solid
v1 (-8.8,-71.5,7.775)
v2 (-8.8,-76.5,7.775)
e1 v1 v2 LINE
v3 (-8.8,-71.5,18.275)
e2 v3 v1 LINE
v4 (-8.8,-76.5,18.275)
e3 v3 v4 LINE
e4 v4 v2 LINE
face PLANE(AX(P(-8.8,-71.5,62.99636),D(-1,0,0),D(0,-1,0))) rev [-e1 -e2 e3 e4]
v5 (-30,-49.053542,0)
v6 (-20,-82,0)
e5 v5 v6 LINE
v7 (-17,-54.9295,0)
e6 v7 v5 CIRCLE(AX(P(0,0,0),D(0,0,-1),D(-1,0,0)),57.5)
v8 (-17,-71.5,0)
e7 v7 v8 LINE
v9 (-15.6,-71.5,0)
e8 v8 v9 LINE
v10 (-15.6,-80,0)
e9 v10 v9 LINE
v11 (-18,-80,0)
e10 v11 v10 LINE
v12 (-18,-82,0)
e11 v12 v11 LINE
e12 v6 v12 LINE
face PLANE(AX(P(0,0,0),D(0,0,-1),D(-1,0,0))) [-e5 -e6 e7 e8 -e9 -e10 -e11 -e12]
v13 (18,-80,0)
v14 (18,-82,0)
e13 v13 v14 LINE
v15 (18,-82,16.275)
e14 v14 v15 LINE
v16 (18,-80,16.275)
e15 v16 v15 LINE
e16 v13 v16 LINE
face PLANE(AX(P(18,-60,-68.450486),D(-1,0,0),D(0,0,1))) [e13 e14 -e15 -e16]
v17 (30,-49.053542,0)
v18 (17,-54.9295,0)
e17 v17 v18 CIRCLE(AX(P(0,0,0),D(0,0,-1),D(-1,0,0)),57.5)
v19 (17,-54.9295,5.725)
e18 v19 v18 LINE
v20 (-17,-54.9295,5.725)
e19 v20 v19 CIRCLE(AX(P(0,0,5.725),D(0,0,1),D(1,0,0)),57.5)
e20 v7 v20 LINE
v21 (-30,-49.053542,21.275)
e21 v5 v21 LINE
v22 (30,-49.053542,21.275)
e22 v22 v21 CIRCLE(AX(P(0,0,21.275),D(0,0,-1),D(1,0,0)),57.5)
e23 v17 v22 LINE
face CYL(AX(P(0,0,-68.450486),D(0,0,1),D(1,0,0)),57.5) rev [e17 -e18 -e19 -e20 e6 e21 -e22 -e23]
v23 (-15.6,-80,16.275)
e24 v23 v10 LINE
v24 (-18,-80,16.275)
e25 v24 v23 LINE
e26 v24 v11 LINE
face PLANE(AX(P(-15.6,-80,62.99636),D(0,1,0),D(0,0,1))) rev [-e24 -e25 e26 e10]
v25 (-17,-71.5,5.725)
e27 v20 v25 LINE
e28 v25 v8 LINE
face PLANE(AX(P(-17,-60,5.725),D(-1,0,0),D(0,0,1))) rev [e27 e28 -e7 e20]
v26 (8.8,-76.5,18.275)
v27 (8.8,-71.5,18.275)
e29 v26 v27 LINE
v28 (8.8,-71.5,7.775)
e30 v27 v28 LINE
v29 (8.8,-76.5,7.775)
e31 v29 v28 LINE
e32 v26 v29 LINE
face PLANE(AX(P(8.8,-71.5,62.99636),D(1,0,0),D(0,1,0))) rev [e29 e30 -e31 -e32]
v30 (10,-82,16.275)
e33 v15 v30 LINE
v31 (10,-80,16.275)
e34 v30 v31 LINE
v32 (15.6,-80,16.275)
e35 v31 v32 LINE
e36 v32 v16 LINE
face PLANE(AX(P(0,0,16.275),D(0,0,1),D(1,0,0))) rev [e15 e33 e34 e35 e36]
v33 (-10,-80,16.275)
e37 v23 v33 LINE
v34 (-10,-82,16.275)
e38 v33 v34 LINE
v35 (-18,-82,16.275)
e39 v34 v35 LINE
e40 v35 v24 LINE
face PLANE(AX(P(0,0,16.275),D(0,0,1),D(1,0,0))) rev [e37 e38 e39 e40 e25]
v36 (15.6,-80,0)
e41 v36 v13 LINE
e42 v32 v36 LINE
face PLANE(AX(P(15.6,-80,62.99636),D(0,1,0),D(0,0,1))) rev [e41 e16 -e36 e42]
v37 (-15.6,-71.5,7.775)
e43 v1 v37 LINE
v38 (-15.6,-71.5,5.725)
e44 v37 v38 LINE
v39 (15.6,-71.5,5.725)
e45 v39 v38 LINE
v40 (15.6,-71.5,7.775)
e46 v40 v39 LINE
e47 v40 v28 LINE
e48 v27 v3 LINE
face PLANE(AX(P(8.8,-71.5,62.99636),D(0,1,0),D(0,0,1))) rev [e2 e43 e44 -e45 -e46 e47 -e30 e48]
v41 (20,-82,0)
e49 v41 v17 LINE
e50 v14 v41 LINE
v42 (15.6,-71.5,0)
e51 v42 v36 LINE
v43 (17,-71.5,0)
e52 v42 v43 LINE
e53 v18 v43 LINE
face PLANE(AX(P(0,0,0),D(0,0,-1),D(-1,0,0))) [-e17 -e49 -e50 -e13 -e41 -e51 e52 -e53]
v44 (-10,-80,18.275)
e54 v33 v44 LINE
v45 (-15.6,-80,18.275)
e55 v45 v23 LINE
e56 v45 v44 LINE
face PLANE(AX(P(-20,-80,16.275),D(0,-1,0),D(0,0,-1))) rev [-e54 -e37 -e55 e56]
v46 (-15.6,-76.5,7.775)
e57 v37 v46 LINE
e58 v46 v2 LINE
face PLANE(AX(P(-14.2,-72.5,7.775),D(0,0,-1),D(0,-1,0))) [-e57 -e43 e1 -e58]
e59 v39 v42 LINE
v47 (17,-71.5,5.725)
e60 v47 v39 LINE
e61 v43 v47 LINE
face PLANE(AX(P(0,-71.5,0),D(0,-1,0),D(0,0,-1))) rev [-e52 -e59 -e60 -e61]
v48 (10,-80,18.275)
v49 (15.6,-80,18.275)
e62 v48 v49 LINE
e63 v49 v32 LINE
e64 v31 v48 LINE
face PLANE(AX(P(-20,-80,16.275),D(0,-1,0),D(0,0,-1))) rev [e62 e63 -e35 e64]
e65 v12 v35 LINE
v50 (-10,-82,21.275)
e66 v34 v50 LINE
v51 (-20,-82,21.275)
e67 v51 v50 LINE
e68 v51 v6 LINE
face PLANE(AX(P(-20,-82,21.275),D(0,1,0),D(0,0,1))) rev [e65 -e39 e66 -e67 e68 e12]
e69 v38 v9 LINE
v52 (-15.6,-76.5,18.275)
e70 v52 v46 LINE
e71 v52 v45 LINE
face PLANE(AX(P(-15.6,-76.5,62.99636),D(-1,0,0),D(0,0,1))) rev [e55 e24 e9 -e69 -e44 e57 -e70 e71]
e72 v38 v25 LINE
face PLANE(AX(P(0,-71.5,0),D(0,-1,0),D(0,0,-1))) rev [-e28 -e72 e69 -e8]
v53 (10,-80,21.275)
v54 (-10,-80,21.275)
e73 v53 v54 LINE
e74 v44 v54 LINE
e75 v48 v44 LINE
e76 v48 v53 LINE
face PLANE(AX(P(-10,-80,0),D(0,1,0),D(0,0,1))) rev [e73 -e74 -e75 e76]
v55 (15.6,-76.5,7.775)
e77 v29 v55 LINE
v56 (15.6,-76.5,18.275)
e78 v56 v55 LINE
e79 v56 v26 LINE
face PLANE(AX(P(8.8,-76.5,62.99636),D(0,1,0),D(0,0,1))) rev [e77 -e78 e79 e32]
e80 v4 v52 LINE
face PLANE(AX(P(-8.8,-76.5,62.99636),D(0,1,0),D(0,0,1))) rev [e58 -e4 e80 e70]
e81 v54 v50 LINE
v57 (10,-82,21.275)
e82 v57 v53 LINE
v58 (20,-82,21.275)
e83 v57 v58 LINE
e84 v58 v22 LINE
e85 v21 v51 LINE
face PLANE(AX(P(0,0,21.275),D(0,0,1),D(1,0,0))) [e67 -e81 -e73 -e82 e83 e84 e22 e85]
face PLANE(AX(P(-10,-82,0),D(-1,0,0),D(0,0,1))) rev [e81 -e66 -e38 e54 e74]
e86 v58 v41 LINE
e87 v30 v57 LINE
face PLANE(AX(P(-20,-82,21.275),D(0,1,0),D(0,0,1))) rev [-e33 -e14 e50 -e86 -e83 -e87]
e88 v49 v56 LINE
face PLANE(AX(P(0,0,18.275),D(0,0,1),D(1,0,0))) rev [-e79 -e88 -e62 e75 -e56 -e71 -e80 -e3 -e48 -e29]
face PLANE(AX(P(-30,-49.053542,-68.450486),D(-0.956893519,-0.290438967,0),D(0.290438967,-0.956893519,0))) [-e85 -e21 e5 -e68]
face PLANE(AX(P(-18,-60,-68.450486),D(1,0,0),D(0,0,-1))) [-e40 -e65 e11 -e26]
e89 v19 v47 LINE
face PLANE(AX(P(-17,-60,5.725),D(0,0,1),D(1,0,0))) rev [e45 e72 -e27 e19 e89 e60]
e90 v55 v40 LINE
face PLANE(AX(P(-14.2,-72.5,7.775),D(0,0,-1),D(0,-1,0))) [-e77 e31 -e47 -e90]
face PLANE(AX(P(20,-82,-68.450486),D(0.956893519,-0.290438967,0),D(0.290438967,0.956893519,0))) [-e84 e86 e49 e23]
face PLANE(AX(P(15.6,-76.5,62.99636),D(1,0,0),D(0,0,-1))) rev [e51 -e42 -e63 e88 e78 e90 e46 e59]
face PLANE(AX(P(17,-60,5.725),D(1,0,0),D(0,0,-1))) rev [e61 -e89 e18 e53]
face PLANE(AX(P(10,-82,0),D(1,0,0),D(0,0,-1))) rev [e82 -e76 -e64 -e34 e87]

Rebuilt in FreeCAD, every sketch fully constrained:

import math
import FreeCAD as App
import Part
import Sketcher
from FreeCAD import Vector


def add_polygon(sketch, points):
    """Adds a closed chain of lines whose ends are joined by coincident constraints."""
    first, n = sketch.GeometryCount, len(points)
    for a, b in zip(points, points[1:] + points[:1]):
        sketch.addGeometry(Part.LineSegment(App.Vector(*a, 0), App.Vector(*b, 0)), False)
    for i in range(n):
        sketch.addConstraint(Sketcher.Constraint("Coincident", first + i, 2, first + (i + 1) % n, 1))

doc = App.newDocument("Part")
params = doc.addObject("Spreadsheet::Sheet", "Params")
for row, (alias, value) in enumerate([
    ("sketch1_width", "40 mm"),
    ("sketch1_height", "5 mm"),
    ("sketch1_height2", "20 mm"),
    ("sketch1_width2", "4.4 mm"),
    ("sketch1_width3", "6.8 mm"),
    ("pad1_length", "18.275 mm"),
    ("sketch2_width", "40 mm"),
    ("sketch2_height", "22 mm"),
    ("pad2_length", "3 mm"),
    ("sketch3_width", "40 mm"),
    ("sketch3_height", "2 mm"),
    ("pad3_length", "2 mm"),
    ("sketch4_width", "20 mm"),
    ("sketch4_height", "2 mm"),
    ("sketch5_height", "5 mm"),
    ("sketch5_width", "31.2 mm"),
    ("pocket2_length", "7.775 mm"),
    ("sketch6_width", "34 mm"),
    ("sketch7_radius", "57.5 mm"),
    ("sketch7_width", "2 mm"),
    ("sketch7_width2", "36 mm"),
    ("sketch7_height", "22 mm"),
    ("pad4_length", "21.275 mm"),
    ("sketch8_width", "34 mm"),
], start=1):
    params.set(f"A{row}", alias)
    params.set(f"B{row}", "=" + value)
    params.setAlias(f"B{row}", alias)

body = doc.addObject("PartDesign::Body", "Body")

sketch1 = body.newObject("Sketcher::SketchObject", "Sketch")
sketch1.AttachmentSupport = (doc.getObject("XY_Plane"), [""])
sketch1.MapMode = "FlatFace"
add_polygon(sketch1, [(-20, -80), (-15.6, -80), (-15.6, -76.5), (-8.8, -76.5), (-8.8, -71.5), (8.8, -71.5), (8.8, -76.5), (15.6, -76.5), (15.6, -80), (20, -80), (20, -60), (-20, -60)])
sketch1.addConstraint(Sketcher.Constraint("Horizontal", 0))
sketch1.addConstraint(Sketcher.Constraint("Vertical", 1))
sketch1.addConstraint(Sketcher.Constraint("Horizontal", 2))
sketch1.addConstraint(Sketcher.Constraint("Vertical", 3))
sketch1.addConstraint(Sketcher.Constraint("Horizontal", 4))
sketch1.addConstraint(Sketcher.Constraint("Vertical", 5))
sketch1.addConstraint(Sketcher.Constraint("Horizontal", 6))
sketch1.addConstraint(Sketcher.Constraint("Vertical", 7))
sketch1.addConstraint(Sketcher.Constraint("Horizontal", 8))
sketch1.addConstraint(Sketcher.Constraint("Vertical", 9))
sketch1.addConstraint(Sketcher.Constraint("Horizontal", 10))
sketch1.addConstraint(Sketcher.Constraint("Vertical", 11))
sketch1.addConstraint(Sketcher.Constraint("Symmetric", 2, 2, 5, 2, -2))
sketch1.addConstraint(Sketcher.Constraint("Symmetric", 0, 2, 7, 2, -2))
sketch1.addConstraint(Sketcher.Constraint("Equal", 0, 8))
sketch1.addConstraint(Sketcher.Constraint("DistanceX", 10, 2, 10, 1, 40.0))
sketch1.addConstraint(Sketcher.Constraint("DistanceY", 3, 1, 3, 2, 5.0))
sketch1.addConstraint(Sketcher.Constraint("DistanceY", 9, 1, 9, 2, 20.0))
sketch1.addConstraint(Sketcher.Constraint("DistanceX", 0, 1, 0, 2, 4.4))
sketch1.addConstraint(Sketcher.Constraint("DistanceX", 2, 1, 2, 2, 6.8))
sketch1.addConstraint(Sketcher.Constraint("DistanceY", 1, 1, 1, 2, 3.5))
sketch1.addConstraint(Sketcher.Constraint("DistanceY", 0, 2, -1, 1, 80.0))
sketch1.setExpression("Constraints[27]", "Params.sketch1_width")
sketch1.setExpression("Constraints[28]", "Params.sketch1_height")
sketch1.setExpression("Constraints[29]", "Params.sketch1_height2")
sketch1.setExpression("Constraints[30]", "Params.sketch1_width2")
sketch1.setExpression("Constraints[31]", "Params.sketch1_width3")
pad1 = body.newObject("PartDesign::Pad", "Pad")
pad1.Profile = sketch1
pad1.setExpression("Length", "Params.pad1_length")

sketch2 = body.newObject("Sketcher::SketchObject", "Sketch001")
sketch2.AttachmentSupport = (doc.getObject("XY_Plane"), [""])
sketch2.MapMode = "FlatFace"
sketch2.AttachmentOffset = App.Placement(Vector(0, 0, 18.275), App.Rotation())
add_polygon(sketch2, [(-20, -60), (-20, -82), (20, -82), (20, -60)])
sketch2.addConstraint(Sketcher.Constraint("Vertical", 0))
sketch2.addConstraint(Sketcher.Constraint("Horizontal", 1))
sketch2.addConstraint(Sketcher.Constraint("Vertical", 2))
sketch2.addConstraint(Sketcher.Constraint("Horizontal", 3))
sketch2.addConstraint(Sketcher.Constraint("DistanceX", 1, 1, 1, 2, 40.0))
sketch2.addConstraint(Sketcher.Constraint("DistanceY", 0, 2, 0, 1, 22.0))
sketch2.addConstraint(Sketcher.Constraint("DistanceX", 0, 2, -1, 1, 20.0))
sketch2.addConstraint(Sketcher.Constraint("DistanceY", 0, 2, -1, 1, 82.0))
sketch2.setExpression("Constraints[8]", "Params.sketch2_width")
sketch2.setExpression("Constraints[9]", "Params.sketch2_height")
pad2 = body.newObject("PartDesign::Pad", "Pad001")
pad2.Profile = sketch2
pad2.setExpression("Length", "Params.pad2_length")

sketch3 = body.newObject("Sketcher::SketchObject", "Sketch002")
sketch3.AttachmentSupport = (doc.getObject("XY_Plane"), [""])
sketch3.MapMode = "FlatFace"
sketch3.AttachmentOffset = App.Placement(Vector(0, 0, 18.275), App.Rotation())
add_polygon(sketch3, [(20, -80), (20, -82), (-20, -82), (-20, -80)])
sketch3.addConstraint(Sketcher.Constraint("Vertical", 0))
sketch3.addConstraint(Sketcher.Constraint("Horizontal", 1))
sketch3.addConstraint(Sketcher.Constraint("Vertical", 2))
sketch3.addConstraint(Sketcher.Constraint("Horizontal", 3))
sketch3.addConstraint(Sketcher.Constraint("DistanceX", 1, 2, 1, 1, 40.0))
sketch3.addConstraint(Sketcher.Constraint("DistanceY", 0, 2, 0, 1, 2.0))
sketch3.addConstraint(Sketcher.Constraint("DistanceX", -1, 1, 0, 2, 20.0))
sketch3.addConstraint(Sketcher.Constraint("DistanceY", 0, 2, -1, 1, 82.0))
sketch3.setExpression("Constraints[8]", "Params.sketch3_width")
sketch3.setExpression("Constraints[9]", "Params.sketch3_height")
pad3 = body.newObject("PartDesign::Pad", "Pad002")
pad3.Profile = sketch3
pad3.setExpression("Length", "Params.pad3_length")
pad3.Reversed = True

sketch4 = body.newObject("Sketcher::SketchObject", "Sketch003")
sketch4.AttachmentSupport = (doc.getObject("XY_Plane"), [""])
sketch4.MapMode = "FlatFace"
sketch4.AttachmentOffset = App.Placement(Vector(0, 0, 21.275), App.Rotation())
add_polygon(sketch4, [(-10, -80), (-10, -82), (10, -82), (10, -80)])
sketch4.addConstraint(Sketcher.Constraint("Vertical", 0))
sketch4.addConstraint(Sketcher.Constraint("Horizontal", 1))
sketch4.addConstraint(Sketcher.Constraint("Vertical", 2))
sketch4.addConstraint(Sketcher.Constraint("Horizontal", 3))
sketch4.addConstraint(Sketcher.Constraint("DistanceX", 1, 1, 1, 2, 20.0))
sketch4.addConstraint(Sketcher.Constraint("DistanceY", 0, 2, 0, 1, 2.0))
sketch4.addConstraint(Sketcher.Constraint("DistanceX", 0, 2, -1, 1, 10.0))
sketch4.addConstraint(Sketcher.Constraint("DistanceY", 0, 2, -1, 1, 82.0))
sketch4.setExpression("Constraints[8]", "Params.sketch4_width")
sketch4.setExpression("Constraints[9]", "Params.sketch4_height")
pocket1 = body.newObject("PartDesign::Pocket", "Pocket")
pocket1.Profile = sketch4
pocket1.Type = "ThroughAll"

sketch5 = body.newObject("Sketcher::SketchObject", "Sketch004")
sketch5.AttachmentSupport = (doc.getObject("XY_Plane"), [""])
sketch5.MapMode = "FlatFace"
sketch5.AttachmentOffset = App.Placement(Vector(0, 0, 7.775), App.Rotation())
add_polygon(sketch5, [(16, -72), (16, -76), (-16, -76), (-16, -72)])
sketch5.addConstraint(Sketcher.Constraint("Vertical", 0))
sketch5.addConstraint(Sketcher.Constraint("Horizontal", 1))
sketch5.addConstraint(Sketcher.Constraint("Vertical", 2))
sketch5.addConstraint(Sketcher.Constraint("Horizontal", 3))
sketch5.addConstraint(Sketcher.Constraint("DistanceY", 0, 2, 0, 1, 5.0))
sketch5.addConstraint(Sketcher.Constraint("DistanceX", 1, 2, 1, 1, 31.2))
sketch5.addConstraint(Sketcher.Constraint("DistanceX", -1, 1, 0, 2, 15.6))
sketch5.addConstraint(Sketcher.Constraint("DistanceY", 0, 2, -1, 1, 76.5))
sketch5.setExpression("Constraints[8]", "Params.sketch5_height")
sketch5.setExpression("Constraints[9]", "Params.sketch5_width")
pocket2 = body.newObject("PartDesign::Pocket", "Pocket001")
pocket2.Profile = sketch5
pocket2.setExpression("Length", "Params.pocket2_length")

sketch6 = body.newObject("Sketcher::SketchObject", "Sketch005")
sketch6.AttachmentSupport = (doc.getObject("XZ_Plane"), [""])
sketch6.MapMode = "FlatFace"
sketch6.AttachmentOffset = App.Placement(Vector(0, 0, 71.5), App.Rotation())
add_polygon(sketch6, [(-17, 6), (-17, 0), (17, 0), (17, 6)])
sketch6.addConstraint(Sketcher.Constraint("Vertical", 0))
sketch6.addConstraint(Sketcher.Constraint("Horizontal", 1))
sketch6.addConstraint(Sketcher.Constraint("Vertical", 2))
sketch6.addConstraint(Sketcher.Constraint("Horizontal", 3))
sketch6.addConstraint(Sketcher.Constraint("Symmetric", 0, 2, 1, 2, -1, 1))
sketch6.addConstraint(Sketcher.Constraint("DistanceX", 1, 1, 1, 2, 34.0))
sketch6.addConstraint(Sketcher.Constraint("DistanceY", 0, 2, 0, 1, 5.725))
sketch6.setExpression("Constraints[9]", "Params.sketch6_width")
pocket3 = body.newObject("PartDesign::Pocket", "Pocket002")
pocket3.Profile = sketch6
pocket3.Type = "ThroughAll"

sketch7 = body.newObject("Sketcher::SketchObject", "Sketch006")
sketch7.AttachmentSupport = (doc.getObject("XY_Plane"), [""])
sketch7.MapMode = "FlatFace"
sketch7.AttachmentOffset = App.Placement(Vector(0, 0, 21.275), App.Rotation())
sketch7.addGeometry(Part.LineSegment(Vector(-30, -49.1, 0), Vector(-20, -82, 0)), False)
sketch7.addGeometry(Part.LineSegment(Vector(-20, -82, 0), Vector(-18, -82, 0)), False)
sketch7.addGeometry(Part.LineSegment(Vector(-18, -82, 0), Vector(-18, -60, 0)), False)
sketch7.addGeometry(Part.LineSegment(Vector(-18, -60, 0), Vector(18, -60, 0)), False)
sketch7.addGeometry(Part.LineSegment(Vector(18, -60, 0), Vector(18, -82, 0)), False)
sketch7.addGeometry(Part.LineSegment(Vector(18, -82, 0), Vector(20, -82, 0)), False)
sketch7.addGeometry(Part.LineSegment(Vector(20, -82, 0), Vector(30, -49.1, 0)), False)
sketch7.addGeometry(Part.ArcOfCircle(Part.Circle(Vector(0, 0, 0), Vector(0, 0, 1), 57.5), math.radians(-121), math.radians(-59)), False)
sketch7.addConstraint(Sketcher.Constraint("Coincident", 0, 2, 1, 1))
sketch7.addConstraint(Sketcher.Constraint("Coincident", 1, 2, 2, 1))
sketch7.addConstraint(Sketcher.Constraint("Coincident", 2, 2, 3, 1))
sketch7.addConstraint(Sketcher.Constraint("Coincident", 3, 2, 4, 1))
sketch7.addConstraint(Sketcher.Constraint("Coincident", 4, 2, 5, 1))
sketch7.addConstraint(Sketcher.Constraint("Coincident", 5, 2, 6, 1))
sketch7.addConstraint(Sketcher.Constraint("Coincident", 6, 2, 7, 2))
sketch7.addConstraint(Sketcher.Constraint("Coincident", 7, 1, 0, 1))
sketch7.addConstraint(Sketcher.Constraint("Horizontal", 1))
sketch7.addConstraint(Sketcher.Constraint("Vertical", 2))
sketch7.addConstraint(Sketcher.Constraint("Horizontal", 3))
sketch7.addConstraint(Sketcher.Constraint("Vertical", 4))
sketch7.addConstraint(Sketcher.Constraint("Horizontal", 5))
sketch7.addConstraint(Sketcher.Constraint("Coincident", 7, 3, -1, 1))
sketch7.addConstraint(Sketcher.Constraint("Symmetric", 1, 2, 4, 2, -2))
sketch7.addConstraint(Sketcher.Constraint("Horizontal", 6, 2, 7, 1))
sketch7.addConstraint(Sketcher.Constraint("Equal", 1, 5))
sketch7.addConstraint(Sketcher.Constraint("Radius", 7, 57.5))
sketch7.addConstraint(Sketcher.Constraint("DistanceX", 1, 1, 1, 2, 2.0))
sketch7.addConstraint(Sketcher.Constraint("DistanceX", 3, 1, 3, 2, 36.0))
sketch7.addConstraint(Sketcher.Constraint("DistanceY", 2, 1, 2, 2, 22.0))
sketch7.addConstraint(Sketcher.Constraint("DistanceY", 0, 2, -1, 1, 82.0))
sketch7.addConstraint(Sketcher.Constraint("DistanceX", -1, 1, 6, 2, 30.0))
sketch7.setExpression("Constraints[17]", "Params.sketch7_radius")
sketch7.setExpression("Constraints[18]", "Params.sketch7_width")
sketch7.setExpression("Constraints[19]", "Params.sketch7_width2")
sketch7.setExpression("Constraints[20]", "Params.sketch7_height")
pad4 = body.newObject("PartDesign::Pad", "Pad003")
pad4.Profile = sketch7
pad4.setExpression("Length", "Params.pad4_length")
pad4.Reversed = True

sketch8 = body.newObject("Sketcher::SketchObject", "Sketch007")
sketch8.AttachmentSupport = (doc.getObject("XZ_Plane"), [""])
sketch8.MapMode = "FlatFace"
sketch8.AttachmentOffset = App.Placement(Vector(0, 0, 60), App.Rotation())
add_polygon(sketch8, [(-17, 6), (-17, 0), (17, 0), (17, 6)])
sketch8.addConstraint(Sketcher.Constraint("Vertical", 0))
sketch8.addConstraint(Sketcher.Constraint("Horizontal", 1))
sketch8.addConstraint(Sketcher.Constraint("Vertical", 2))
sketch8.addConstraint(Sketcher.Constraint("Horizontal", 3))
sketch8.addConstraint(Sketcher.Constraint("Symmetric", 0, 2, 1, 2, -1, 1))
sketch8.addConstraint(Sketcher.Constraint("DistanceX", 1, 1, 1, 2, 34.0))
sketch8.addConstraint(Sketcher.Constraint("DistanceY", 0, 2, 0, 1, 5.725))
sketch8.setExpression("Constraints[9]", "Params.sketch8_width")
pocket4 = body.newObject("PartDesign::Pocket", "Pocket003")
pocket4.Profile = sketch8
pocket4.Type = "ThroughAll"

doc.recompute()
